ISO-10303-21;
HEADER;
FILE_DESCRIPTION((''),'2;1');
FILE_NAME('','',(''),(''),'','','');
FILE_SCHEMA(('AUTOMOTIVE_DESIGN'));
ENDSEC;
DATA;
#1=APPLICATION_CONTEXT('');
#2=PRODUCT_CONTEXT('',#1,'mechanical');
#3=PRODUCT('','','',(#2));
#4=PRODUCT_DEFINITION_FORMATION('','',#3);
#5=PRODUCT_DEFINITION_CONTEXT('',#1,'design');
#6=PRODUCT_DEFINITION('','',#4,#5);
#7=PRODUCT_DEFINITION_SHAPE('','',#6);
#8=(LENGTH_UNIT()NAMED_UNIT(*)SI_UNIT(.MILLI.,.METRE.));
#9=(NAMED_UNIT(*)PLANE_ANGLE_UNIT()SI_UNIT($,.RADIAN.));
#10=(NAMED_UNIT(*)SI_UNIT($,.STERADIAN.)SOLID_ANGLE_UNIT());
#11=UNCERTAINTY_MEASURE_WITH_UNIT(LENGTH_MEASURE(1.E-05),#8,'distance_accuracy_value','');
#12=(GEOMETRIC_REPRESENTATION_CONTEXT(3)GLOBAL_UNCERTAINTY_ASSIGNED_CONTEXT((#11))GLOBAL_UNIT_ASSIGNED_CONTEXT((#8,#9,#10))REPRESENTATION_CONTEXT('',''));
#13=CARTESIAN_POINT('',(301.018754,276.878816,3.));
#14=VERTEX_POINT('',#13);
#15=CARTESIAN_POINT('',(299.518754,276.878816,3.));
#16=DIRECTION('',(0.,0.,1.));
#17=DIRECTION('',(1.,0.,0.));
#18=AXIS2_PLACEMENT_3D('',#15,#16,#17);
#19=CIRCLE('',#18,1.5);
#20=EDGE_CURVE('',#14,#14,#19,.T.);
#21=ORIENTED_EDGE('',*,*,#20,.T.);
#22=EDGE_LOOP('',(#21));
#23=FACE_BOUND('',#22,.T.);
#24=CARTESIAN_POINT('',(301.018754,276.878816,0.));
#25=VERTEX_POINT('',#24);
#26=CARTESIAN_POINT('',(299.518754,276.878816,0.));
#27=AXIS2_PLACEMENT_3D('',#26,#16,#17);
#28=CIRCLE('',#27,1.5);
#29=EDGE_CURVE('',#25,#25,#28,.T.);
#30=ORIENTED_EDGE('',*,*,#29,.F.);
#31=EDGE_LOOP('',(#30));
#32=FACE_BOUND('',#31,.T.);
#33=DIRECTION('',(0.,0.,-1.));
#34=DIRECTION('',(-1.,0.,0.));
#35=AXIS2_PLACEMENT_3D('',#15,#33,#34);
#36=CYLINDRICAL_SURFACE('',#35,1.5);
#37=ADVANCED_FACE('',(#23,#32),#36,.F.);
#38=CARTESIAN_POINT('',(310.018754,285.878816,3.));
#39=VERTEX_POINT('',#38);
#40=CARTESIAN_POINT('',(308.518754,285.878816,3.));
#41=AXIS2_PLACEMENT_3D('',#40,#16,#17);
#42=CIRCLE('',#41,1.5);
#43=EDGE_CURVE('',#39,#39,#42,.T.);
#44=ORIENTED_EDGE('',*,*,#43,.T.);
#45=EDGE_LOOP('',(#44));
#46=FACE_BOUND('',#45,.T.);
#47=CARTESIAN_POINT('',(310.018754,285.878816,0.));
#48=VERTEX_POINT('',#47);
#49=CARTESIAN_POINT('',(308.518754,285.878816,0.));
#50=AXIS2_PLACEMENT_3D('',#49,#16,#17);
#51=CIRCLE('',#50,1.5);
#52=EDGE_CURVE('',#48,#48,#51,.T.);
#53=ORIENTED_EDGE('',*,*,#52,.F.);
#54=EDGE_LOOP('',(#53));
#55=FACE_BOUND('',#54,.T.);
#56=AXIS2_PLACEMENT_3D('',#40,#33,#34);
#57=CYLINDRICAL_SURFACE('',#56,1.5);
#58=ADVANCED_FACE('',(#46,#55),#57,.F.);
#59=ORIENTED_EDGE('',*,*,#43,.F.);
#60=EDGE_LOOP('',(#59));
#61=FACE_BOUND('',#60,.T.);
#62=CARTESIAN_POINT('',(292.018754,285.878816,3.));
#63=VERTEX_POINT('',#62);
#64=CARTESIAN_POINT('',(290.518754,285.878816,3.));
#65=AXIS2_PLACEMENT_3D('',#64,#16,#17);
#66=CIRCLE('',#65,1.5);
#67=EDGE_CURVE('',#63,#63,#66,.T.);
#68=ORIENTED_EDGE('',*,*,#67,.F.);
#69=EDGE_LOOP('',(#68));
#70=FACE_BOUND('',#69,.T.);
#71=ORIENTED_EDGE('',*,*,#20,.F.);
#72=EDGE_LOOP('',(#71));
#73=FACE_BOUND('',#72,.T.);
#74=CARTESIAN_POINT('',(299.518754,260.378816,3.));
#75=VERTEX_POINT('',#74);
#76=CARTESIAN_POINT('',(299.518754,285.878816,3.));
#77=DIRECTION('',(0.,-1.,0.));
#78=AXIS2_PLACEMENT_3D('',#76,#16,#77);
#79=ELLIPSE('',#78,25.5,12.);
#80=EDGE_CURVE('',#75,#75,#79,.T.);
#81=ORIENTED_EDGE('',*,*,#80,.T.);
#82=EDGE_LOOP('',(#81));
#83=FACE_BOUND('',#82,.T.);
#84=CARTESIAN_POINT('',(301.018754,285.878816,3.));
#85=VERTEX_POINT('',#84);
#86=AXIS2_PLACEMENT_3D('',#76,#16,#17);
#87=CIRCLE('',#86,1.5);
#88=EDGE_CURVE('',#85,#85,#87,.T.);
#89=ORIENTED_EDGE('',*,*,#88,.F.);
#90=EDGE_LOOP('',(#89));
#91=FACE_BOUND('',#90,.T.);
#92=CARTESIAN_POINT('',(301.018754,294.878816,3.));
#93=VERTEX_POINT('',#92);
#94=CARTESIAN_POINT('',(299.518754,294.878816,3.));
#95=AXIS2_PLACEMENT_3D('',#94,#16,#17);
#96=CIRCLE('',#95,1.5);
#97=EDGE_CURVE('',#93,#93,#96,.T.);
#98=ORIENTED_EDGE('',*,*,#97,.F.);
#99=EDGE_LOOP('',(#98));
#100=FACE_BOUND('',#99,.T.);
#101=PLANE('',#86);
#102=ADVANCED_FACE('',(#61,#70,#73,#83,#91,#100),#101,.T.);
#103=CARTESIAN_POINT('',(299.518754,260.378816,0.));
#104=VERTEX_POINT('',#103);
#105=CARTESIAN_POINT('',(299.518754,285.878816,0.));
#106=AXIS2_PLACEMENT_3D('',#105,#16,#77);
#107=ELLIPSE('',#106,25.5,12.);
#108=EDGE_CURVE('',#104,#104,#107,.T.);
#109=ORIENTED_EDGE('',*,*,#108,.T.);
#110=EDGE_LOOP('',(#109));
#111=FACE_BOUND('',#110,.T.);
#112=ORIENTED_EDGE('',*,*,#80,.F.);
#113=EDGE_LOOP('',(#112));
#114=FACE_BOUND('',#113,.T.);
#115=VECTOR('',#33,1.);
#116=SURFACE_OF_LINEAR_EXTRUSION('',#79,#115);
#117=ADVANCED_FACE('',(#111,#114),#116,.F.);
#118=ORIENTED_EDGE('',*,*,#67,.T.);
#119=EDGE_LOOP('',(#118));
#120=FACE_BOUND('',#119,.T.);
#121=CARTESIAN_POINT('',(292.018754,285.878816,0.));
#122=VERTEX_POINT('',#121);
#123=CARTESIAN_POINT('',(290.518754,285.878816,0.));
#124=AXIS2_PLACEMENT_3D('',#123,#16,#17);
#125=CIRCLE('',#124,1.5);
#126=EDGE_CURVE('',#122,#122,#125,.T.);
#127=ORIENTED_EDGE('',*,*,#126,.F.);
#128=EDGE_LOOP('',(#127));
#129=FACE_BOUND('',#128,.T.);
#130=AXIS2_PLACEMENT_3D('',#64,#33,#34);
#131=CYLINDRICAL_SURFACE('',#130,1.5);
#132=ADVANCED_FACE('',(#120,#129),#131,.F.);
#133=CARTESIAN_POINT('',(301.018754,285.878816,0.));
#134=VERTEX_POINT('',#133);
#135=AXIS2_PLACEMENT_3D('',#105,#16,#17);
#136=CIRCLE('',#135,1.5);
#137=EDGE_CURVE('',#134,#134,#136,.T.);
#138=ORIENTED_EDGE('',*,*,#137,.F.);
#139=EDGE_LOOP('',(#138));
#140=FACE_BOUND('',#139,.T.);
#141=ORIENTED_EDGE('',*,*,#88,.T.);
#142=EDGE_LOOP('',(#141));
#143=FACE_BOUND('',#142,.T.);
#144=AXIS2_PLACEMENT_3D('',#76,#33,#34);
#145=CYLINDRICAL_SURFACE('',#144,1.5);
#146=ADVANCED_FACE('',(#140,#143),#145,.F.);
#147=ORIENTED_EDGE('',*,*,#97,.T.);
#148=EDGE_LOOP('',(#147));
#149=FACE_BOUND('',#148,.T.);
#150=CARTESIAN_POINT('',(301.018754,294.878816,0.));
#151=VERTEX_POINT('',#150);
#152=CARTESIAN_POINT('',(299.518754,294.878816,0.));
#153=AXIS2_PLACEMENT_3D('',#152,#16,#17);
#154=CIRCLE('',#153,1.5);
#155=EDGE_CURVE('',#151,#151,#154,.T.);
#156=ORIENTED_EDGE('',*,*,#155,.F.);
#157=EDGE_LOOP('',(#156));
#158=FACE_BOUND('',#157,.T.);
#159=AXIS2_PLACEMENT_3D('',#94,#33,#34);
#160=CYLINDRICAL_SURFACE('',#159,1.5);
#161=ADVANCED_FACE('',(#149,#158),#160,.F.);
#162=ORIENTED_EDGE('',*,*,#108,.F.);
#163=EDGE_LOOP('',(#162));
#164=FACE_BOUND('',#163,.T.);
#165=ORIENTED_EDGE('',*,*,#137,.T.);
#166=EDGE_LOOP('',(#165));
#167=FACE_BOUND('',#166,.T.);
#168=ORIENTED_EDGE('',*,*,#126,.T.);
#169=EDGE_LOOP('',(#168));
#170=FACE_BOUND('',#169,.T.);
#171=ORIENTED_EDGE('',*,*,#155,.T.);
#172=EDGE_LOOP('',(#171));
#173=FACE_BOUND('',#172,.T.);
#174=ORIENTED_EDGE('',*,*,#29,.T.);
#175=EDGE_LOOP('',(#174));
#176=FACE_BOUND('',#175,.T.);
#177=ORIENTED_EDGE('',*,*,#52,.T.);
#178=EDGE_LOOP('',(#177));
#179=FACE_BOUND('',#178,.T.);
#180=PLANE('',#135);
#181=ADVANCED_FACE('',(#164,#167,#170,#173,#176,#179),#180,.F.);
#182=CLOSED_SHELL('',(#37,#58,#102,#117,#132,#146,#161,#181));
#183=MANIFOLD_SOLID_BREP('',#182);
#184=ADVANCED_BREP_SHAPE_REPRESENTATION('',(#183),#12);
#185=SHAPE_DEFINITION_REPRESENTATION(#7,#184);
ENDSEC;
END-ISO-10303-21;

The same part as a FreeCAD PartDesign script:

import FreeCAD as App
import Part
import Sketcher
Q = App.Units.Quantity

doc = App.newDocument("Part")
body = doc.addObject("PartDesign::Body", "Body")

sketch1 = body.newObject("Sketcher::SketchObject", "Sketch")
sketch1.AttachmentSupport = (doc.getObject("XY_Plane"), [""])
sketch1.MapMode = "FlatFace"
sketch1.addGeometry([
    Part.Ellipse(App.Vector(299.518754, 260.378816, 0), App.Vector(311.518754, 285.878816, 0), App.Vector(299.518754, 285.878816, 0)),
    Part.Circle(App.Vector(299.518754, 294.878816, 0), App.Vector(0, 0, 1), 1.5),
    Part.Circle(App.Vector(290.518754, 285.878816, 0), App.Vector(0, 0, 1), 1.5),
    Part.Circle(App.Vector(299.518754, 285.878816, 0), App.Vector(0, 0, 1), 1.5),
    Part.Circle(App.Vector(299.518754, 276.878816, 0), App.Vector(0, 0, 1), 1.5),
    Part.Circle(App.Vector(308.518754, 285.878816, 0), App.Vector(0, 0, 1), 1.5),
], False)
sketch1.addConstraint([
    Sketcher.Constraint("Block", 0),
    Sketcher.Constraint("Equal", 1, 2),
    Sketcher.Constraint("Equal", 2, 3),
    Sketcher.Constraint("Equal", 3, 4),
    Sketcher.Constraint("Equal", 4, 5),
    Sketcher.Constraint("Horizontal", 2, 3, 3, 3),
    Sketcher.Constraint("Horizontal", 3, 3, 5, 3),
    Sketcher.Constraint("Vertical", 1, 3, 3, 3),
    Sketcher.Constraint("Vertical", 3, 3, 4, 3),
    Sketcher.Constraint("Diameter", 1, Q("3 mm")),
    Sketcher.Constraint("DistanceX", 2, 3, 1, 3, Q("9 mm")),
    Sketcher.Constraint("DistanceY", 2, 3, 1, 3, Q("9 mm")),
    Sketcher.Constraint("DistanceY", 4, 3, 3, 3, Q("9 mm")),
    Sketcher.Constraint("DistanceX", 3, 3, 5, 3, Q("9 mm")),
    Sketcher.Constraint("DistanceX", -1, 1, 1, 3, Q("299.518754 mm")),
    Sketcher.Constraint("DistanceY", -1, 1, 1, 3, Q("294.878816 mm")),
])
pad1 = body.newObject("PartDesign::Pad", "Pad")
pad1.Profile = sketch1
pad1.Length = 3

doc.recompute()
